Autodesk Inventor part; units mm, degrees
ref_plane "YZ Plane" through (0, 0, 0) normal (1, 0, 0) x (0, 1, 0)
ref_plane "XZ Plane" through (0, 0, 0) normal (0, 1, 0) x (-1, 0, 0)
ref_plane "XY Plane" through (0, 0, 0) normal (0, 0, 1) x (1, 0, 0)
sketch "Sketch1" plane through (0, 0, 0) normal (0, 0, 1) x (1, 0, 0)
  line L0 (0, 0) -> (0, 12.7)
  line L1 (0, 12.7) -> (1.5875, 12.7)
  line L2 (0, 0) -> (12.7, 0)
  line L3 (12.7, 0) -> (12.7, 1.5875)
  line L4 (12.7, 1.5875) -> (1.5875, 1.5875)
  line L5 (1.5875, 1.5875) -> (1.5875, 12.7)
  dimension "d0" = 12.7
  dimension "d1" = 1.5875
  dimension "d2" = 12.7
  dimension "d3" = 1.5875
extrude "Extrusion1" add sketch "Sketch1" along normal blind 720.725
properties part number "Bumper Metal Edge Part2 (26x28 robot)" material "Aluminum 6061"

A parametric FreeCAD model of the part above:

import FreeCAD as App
import Part
import Sketcher

V = App.Vector
Q = App.Units.Quantity


def add_polygon(sketch, points):
    """Adds a closed chain of lines whose ends are joined by coincident constraints."""
    first, n = sketch.GeometryCount, len(points)
    for a, b in zip(points, points[1:] + points[:1]):
        sketch.addGeometry(Part.LineSegment(App.Vector(*a, 0), App.Vector(*b, 0)), False)
    for i in range(n):
        sketch.addConstraint(Sketcher.Constraint("Coincident", first + i, 2, first + (i + 1) % n, 1))

doc = App.newDocument("Part")
body = doc.addObject("PartDesign::Body", "Body")

# Sketch on XY plane
sketch1 = doc.addObject("Sketcher::SketchObject", "Sketch")
body.addObject(sketch1)
sketch1.AttachmentSupport = (doc.XY_Plane, [""])
sketch1.MapMode = "FlatFace"
add_polygon(sketch1, [(0, 12.7), (0, 0), (12.7, 0), (12.7, 1.6), (1.6, 1.6), (1.6, 12.7)])  # lines 0-5
sketch1.addConstraint([
    Sketcher.Constraint("Vertical", 0),
    Sketcher.Constraint("Horizontal", 1),
    Sketcher.Constraint("Vertical", 2),
    Sketcher.Constraint("Horizontal", 3),
    Sketcher.Constraint("Vertical", 4),
    Sketcher.Constraint("Horizontal", 5),
    Sketcher.Constraint("Coincident", 0, 2, -1, 1),
    Sketcher.Constraint("Equal", 1, 0),
    Sketcher.Constraint("Equal", 5, 2),
    Sketcher.Constraint("DistanceX", 1, 1, 1, 2, Q("0.5 in")),
    Sketcher.Constraint("DistanceX", 5, 2, 5, 1, Q("0.0625 in")),
])
pad1 = doc.addObject("PartDesign::Pad", "Pad")
body.addObject(pad1)
pad1.Profile = sketch1
pad1.Length = Q("28.375 in")

doc.recompute()
